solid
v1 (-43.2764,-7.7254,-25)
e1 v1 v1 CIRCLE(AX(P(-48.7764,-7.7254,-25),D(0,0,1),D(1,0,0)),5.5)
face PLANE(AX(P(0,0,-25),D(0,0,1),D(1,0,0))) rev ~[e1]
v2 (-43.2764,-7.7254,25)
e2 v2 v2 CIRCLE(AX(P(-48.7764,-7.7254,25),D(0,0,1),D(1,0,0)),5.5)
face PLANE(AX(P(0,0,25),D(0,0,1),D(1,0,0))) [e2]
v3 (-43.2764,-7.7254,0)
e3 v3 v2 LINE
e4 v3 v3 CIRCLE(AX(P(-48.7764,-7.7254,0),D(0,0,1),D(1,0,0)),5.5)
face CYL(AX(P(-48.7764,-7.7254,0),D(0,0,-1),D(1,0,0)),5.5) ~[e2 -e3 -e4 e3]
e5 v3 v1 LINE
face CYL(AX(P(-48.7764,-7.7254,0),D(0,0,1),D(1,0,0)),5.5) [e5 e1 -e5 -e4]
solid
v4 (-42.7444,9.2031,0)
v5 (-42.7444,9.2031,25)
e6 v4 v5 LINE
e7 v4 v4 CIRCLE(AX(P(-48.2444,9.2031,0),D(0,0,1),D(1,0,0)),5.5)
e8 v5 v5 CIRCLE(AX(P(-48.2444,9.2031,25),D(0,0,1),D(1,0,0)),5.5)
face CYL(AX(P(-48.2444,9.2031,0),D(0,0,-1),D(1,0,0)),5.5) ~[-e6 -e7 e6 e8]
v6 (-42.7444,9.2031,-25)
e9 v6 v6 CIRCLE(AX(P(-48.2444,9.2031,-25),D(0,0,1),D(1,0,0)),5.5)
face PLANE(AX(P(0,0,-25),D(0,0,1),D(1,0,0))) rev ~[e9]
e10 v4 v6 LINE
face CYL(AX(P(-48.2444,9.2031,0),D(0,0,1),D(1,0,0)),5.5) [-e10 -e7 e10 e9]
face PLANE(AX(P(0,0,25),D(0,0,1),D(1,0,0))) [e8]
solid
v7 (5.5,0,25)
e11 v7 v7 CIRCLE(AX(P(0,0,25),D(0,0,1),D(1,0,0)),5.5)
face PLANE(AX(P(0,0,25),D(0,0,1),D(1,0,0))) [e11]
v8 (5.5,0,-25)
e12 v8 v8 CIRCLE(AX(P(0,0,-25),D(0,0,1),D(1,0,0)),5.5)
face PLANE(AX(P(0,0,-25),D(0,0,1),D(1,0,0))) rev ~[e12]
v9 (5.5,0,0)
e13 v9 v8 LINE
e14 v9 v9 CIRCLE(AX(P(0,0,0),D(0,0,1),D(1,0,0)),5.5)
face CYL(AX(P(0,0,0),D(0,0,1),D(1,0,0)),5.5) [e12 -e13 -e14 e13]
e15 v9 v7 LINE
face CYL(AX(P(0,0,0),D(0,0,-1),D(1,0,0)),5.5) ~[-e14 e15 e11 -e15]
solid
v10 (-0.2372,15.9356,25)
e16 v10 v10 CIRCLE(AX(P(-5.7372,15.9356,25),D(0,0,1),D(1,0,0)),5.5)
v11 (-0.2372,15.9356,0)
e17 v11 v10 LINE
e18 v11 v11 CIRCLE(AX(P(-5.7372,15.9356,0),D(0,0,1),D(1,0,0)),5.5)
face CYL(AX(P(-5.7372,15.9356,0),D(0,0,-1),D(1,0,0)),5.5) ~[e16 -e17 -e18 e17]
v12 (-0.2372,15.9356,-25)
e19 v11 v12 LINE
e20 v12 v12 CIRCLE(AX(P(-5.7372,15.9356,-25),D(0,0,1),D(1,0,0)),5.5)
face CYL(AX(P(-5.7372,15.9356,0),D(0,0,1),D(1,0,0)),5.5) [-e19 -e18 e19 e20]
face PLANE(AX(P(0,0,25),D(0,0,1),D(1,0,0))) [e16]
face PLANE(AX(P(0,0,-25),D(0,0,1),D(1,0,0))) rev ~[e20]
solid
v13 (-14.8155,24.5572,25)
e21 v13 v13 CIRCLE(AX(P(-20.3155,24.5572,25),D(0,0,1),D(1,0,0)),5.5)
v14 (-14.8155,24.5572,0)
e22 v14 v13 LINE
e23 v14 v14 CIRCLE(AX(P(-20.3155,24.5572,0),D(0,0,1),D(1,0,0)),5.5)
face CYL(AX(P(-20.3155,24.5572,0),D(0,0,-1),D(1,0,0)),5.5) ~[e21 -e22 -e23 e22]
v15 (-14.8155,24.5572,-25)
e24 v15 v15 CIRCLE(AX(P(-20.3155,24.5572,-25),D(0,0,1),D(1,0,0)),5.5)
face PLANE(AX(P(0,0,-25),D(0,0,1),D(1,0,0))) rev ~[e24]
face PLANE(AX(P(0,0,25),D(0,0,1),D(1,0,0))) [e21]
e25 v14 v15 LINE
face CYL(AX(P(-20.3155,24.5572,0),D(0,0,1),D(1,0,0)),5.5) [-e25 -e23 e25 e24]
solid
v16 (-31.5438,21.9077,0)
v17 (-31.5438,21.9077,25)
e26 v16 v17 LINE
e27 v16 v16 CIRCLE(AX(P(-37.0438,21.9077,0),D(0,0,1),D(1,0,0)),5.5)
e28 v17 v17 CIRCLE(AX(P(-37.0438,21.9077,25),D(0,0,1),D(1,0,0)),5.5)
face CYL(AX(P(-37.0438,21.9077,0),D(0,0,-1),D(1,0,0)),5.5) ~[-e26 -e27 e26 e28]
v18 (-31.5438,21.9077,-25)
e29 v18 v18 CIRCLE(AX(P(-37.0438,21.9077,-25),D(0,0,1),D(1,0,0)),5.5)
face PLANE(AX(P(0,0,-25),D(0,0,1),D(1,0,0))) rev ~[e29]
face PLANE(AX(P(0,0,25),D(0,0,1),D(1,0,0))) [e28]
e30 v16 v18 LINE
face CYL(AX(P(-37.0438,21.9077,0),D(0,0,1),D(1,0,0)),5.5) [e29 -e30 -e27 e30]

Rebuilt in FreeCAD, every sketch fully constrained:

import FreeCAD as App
import Part
import Sketcher
Q = App.Units.Quantity

doc = App.newDocument("Part")
body = doc.addObject("PartDesign::Body", "Body")
body.AllowCompound = True

# Sketch on XY plane
sketch1 = body.newObject("Sketcher::SketchObject", "Sketch")
sketch1.AttachmentSupport = (doc.getObject("XY_Plane"), [""])
sketch1.MapMode = "FlatFace"
sketch1.addGeometry([
    Part.Circle(App.Vector(-48.7764, -7.7254, 0), App.Vector(0, 0, 1), 5.5),  # 0
    Part.Circle(App.Vector(-48.2444, 9.2031, 0), App.Vector(0, 0, 1), 5.5),  # 1
    Part.Circle(App.Vector(-37.0438, 21.9077, 0), App.Vector(0, 0, 1), 5.5),  # 2
    Part.Circle(App.Vector(-20.3155, 24.5572, 0), App.Vector(0, 0, 1), 5.5),  # 3
    Part.Circle(App.Vector(-5.7372, 15.9356, 0), App.Vector(0, 0, 1), 5.5),  # 4
    Part.Circle(App.Vector(0, 0, 0), App.Vector(0, 0, 1), 5.5),  # 5
], False)
sketch1.addConstraint([
    Sketcher.Constraint("Coincident", 5, 3, -1, 1),
    Sketcher.Constraint("Equal", 0, 1),
    Sketcher.Constraint("Equal", 1, 2),
    Sketcher.Constraint("Equal", 2, 3),
    Sketcher.Constraint("Equal", 3, 4),
    Sketcher.Constraint("Equal", 4, 5),
    Sketcher.Constraint("Diameter", 0, Q("11 mm")),
    Sketcher.Constraint("DistanceY", -1, 1, 1, 3, Q("9.203 mm")),
    Sketcher.Constraint("DistanceX", 0, 3, 1, 3, Q("0.532 mm")),
    Sketcher.Constraint("DistanceY", 0, 3, 2, 3, Q("29.633 mm")),
    Sketcher.Constraint("DistanceX", 1, 3, 3, 3, Q("27.929 mm")),
    Sketcher.Constraint("DistanceY", 1, 3, 3, 3, Q("15.354 mm")),
    Sketcher.Constraint("DistanceY", 4, 3, 2, 3, Q("5.972 mm")),
    Sketcher.Constraint("DistanceX", 0, 3, -1, 1, Q("48.7764 mm")),
    Sketcher.Constraint("DistanceY", 0, 3, -1, 1, Q("7.7254 mm")),
    Sketcher.Constraint("DistanceX", 2, 3, -1, 1, Q("37.0438 mm")),
    Sketcher.Constraint("DistanceX", 4, 3, -1, 1, Q("5.7372 mm")),
])
pad1 = body.newObject("PartDesign::Pad", "Pad")
pad1.Profile = sketch1
pad1.Length = 50
pad1.Midplane = True

doc.recompute()
